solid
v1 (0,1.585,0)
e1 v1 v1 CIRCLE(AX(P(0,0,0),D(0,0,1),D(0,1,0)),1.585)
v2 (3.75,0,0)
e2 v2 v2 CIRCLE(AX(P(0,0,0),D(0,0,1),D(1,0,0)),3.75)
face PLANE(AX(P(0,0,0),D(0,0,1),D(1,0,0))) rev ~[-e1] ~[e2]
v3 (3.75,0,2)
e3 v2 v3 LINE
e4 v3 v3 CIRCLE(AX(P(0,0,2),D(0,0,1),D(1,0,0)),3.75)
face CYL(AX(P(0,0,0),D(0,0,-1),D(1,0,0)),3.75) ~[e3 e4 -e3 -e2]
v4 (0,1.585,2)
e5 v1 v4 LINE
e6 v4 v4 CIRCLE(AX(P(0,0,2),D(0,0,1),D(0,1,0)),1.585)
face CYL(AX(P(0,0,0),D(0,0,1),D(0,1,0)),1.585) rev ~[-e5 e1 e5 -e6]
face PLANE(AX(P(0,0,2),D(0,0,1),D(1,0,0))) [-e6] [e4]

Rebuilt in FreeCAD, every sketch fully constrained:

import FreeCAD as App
import Part
import Sketcher

doc = App.newDocument("Part")
body = doc.addObject("PartDesign::Body", "Body")

sketch1 = body.newObject("Sketcher::SketchObject", "Sketch")
sketch1.AttachmentSupport = (doc.getObject("XY_Plane"), [""])
sketch1.MapMode = "FlatFace"
sketch1.addGeometry(Part.Circle(App.Vector(0, 0, 0), App.Vector(0, 0, 1), 3.8), False)
sketch1.addConstraint(Sketcher.Constraint("Coincident", 0, 3, -1, 1))
sketch1.addConstraint(Sketcher.Constraint("Diameter", 0, 7.5))
pad1 = body.newObject("PartDesign::Pad", "Pad")
pad1.Profile = sketch1
pad1.Length = 2

sketch2 = body.newObject("Sketcher::SketchObject", "Sketch001")
sketch2.AttachmentSupport = (doc.getObject("XY_Plane"), [""])
sketch2.MapMode = "FlatFace"
sketch2.addGeometry(Part.Circle(App.Vector(0, 0, 0), App.Vector(0, 0, 1), 1.6), False)
sketch2.addConstraint(Sketcher.Constraint("Coincident", 0, 3, -1, 1))
sketch2.addConstraint(Sketcher.Constraint("Diameter", 0, 3.17))
doc.recompute()
hole = body.newObject("PartDesign::Hole", "Hole")
hole.Profile = sketch2
hole.ThreadType = "None"
hole.Diameter = 3.17
hole.DepthType = "ThroughAll"
hole.Reversed = True

doc.recompute()
